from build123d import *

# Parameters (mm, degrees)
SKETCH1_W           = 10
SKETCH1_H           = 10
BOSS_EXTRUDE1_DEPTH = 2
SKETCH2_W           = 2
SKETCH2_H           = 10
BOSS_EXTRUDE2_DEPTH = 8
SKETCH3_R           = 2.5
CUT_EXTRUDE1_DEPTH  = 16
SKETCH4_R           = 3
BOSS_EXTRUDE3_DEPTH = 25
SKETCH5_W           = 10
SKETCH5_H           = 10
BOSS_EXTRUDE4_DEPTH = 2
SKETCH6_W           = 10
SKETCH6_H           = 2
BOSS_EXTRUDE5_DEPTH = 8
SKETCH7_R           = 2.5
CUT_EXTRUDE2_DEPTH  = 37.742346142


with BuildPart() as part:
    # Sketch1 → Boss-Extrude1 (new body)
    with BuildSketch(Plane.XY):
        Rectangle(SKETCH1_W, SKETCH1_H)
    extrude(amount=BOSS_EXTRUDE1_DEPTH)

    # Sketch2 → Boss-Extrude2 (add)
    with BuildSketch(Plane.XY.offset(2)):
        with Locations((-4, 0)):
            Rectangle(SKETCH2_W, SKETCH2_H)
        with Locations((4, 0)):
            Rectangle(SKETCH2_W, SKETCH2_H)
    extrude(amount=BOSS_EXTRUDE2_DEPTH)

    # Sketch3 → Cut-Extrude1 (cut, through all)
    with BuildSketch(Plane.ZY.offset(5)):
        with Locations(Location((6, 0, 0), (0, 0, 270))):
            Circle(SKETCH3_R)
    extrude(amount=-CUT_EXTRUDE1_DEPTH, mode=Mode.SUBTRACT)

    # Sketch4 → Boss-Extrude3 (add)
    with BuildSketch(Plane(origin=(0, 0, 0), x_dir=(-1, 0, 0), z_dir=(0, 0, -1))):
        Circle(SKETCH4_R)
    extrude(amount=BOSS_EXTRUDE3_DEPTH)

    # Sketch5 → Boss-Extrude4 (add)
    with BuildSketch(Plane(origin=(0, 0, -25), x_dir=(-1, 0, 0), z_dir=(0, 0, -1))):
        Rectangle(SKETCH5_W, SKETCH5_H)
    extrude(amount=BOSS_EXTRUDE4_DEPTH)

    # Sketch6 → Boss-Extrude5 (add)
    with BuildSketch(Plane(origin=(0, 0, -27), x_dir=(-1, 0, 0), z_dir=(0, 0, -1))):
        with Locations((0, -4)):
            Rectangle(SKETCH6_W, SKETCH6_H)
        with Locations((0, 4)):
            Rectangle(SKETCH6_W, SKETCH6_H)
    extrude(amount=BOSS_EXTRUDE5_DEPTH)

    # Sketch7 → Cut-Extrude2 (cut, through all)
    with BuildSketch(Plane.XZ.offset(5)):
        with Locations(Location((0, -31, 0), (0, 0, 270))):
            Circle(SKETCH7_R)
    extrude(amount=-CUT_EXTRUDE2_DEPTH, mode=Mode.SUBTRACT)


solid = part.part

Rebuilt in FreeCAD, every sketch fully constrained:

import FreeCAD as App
import Part
import Sketcher

doc = App.newDocument("Part")
body = doc.addObject("PartDesign::Body", "Body")

# Sketch on XY plane
sketch1 = doc.addObject("Sketcher::SketchObject", "Sketch")
body.addObject(sketch1)
sketch1.AttachmentSupport = (doc.XY_Plane, [""])
sketch1.MapMode = "FlatFace"
sketch1.addGeometry([
    Part.LineSegment(App.Vector(-5, 5, 0), App.Vector(-5, -5, 0)),
    Part.LineSegment(App.Vector(-5, -5, 0), App.Vector(5, -5, 0)),
    Part.LineSegment(App.Vector(5, -5, 0), App.Vector(5, 5, 0)),
    Part.LineSegment(App.Vector(5, 5, 0), App.Vector(-5, 5, 0)),
], False)
sketch1.addConstraint([
    Sketcher.Constraint("Coincident", 0, 2, 1, 1),
    Sketcher.Constraint("Coincident", 1, 2, 2, 1),
    Sketcher.Constraint("Coincident", 2, 2, 3, 1),
    Sketcher.Constraint("Coincident", 3, 2, 0, 1),
    Sketcher.Constraint("Vertical", 0),
    Sketcher.Constraint("Horizontal", 1),
    Sketcher.Constraint("Vertical", 2),
    Sketcher.Constraint("Horizontal", 3),
    Sketcher.Constraint("Symmetric", 0, 2, 2, 2, -1, 1),
    Sketcher.Constraint("Equal", 3, 0),
    Sketcher.Constraint("DistanceX", 1, 1, 1, 2, 10.0),
])
pad1 = doc.addObject("PartDesign::Pad", "Pad")
body.addObject(pad1)
pad1.Profile = sketch1
pad1.Length = 2

# Sketch on XY plane
sketch2 = doc.addObject("Sketcher::SketchObject", "Sketch001")
body.addObject(sketch2)
sketch2.AttachmentSupport = (doc.XY_Plane, [""])
sketch2.MapMode = "FlatFace"
sketch2.AttachmentOffset = App.Placement(App.Vector(0, 0, 2), App.Rotation())
sketch2.addGeometry([
    Part.LineSegment(App.Vector(-5, 5, 0), App.Vector(-5, -5, 0)),  # 0
    Part.LineSegment(App.Vector(-5, -5, 0), App.Vector(-3, -5, 0)),  # 1
    Part.LineSegment(App.Vector(-3, -5, 0), App.Vector(-3, 5, 0)),  # 2
    Part.LineSegment(App.Vector(-3, 5, 0), App.Vector(-5, 5, 0)),  # 3
    Part.LineSegment(App.Vector(3, 5, 0), App.Vector(3, -5, 0)),  # 4
    Part.LineSegment(App.Vector(3, -5, 0), App.Vector(5, -5, 0)),  # 5
    Part.LineSegment(App.Vector(5, -5, 0), App.Vector(5, 5, 0)),  # 6
    Part.LineSegment(App.Vector(5, 5, 0), App.Vector(3, 5, 0)),  # 7
], False)
sketch2.addConstraint([
    Sketcher.Constraint("Coincident", 0, 2, 1, 1),
    Sketcher.Constraint("Coincident", 1, 2, 2, 1),
    Sketcher.Constraint("Coincident", 2, 2, 3, 1),
    Sketcher.Constraint("Coincident", 3, 2, 0, 1),
    Sketcher.Constraint("Coincident", 4, 2, 5, 1),
    Sketcher.Constraint("Coincident", 5, 2, 6, 1),
    Sketcher.Constraint("Coincident", 6, 2, 7, 1),
    Sketcher.Constraint("Coincident", 7, 2, 4, 1),
    Sketcher.Constraint("Vertical", 0),
    Sketcher.Constraint("Horizontal", 1),
    Sketcher.Constraint("Vertical", 2),
    Sketcher.Constraint("Horizontal", 3),
    Sketcher.Constraint("Vertical", 4),
    Sketcher.Constraint("Horizontal", 5),
    Sketcher.Constraint("Vertical", 6),
    Sketcher.Constraint("Horizontal", 7),
    Sketcher.Constraint("Symmetric", 2, 2, 4, 2, -1, 1),
    Sketcher.Constraint("Symmetric", 0, 2, 6, 2, -1, 1),
    Sketcher.Constraint("Horizontal", 1, 2, 4, 2),
    Sketcher.Constraint("DistanceX", 1, 1, 1, 2, 2.0),
    Sketcher.Constraint("DistanceY", 0, 2, 0, 1, 10.0),
    Sketcher.Constraint("DistanceX", 0, 2, -1, 1, 5.0),
])
pad2 = doc.addObject("PartDesign::Pad", "Pad001")
body.addObject(pad2)
pad2.Profile = sketch2
pad2.Length = 8

# Sketch on YZ plane
sketch3 = doc.addObject("Sketcher::SketchObject", "Sketch002")
body.addObject(sketch3)
sketch3.AttachmentSupport = (doc.YZ_Plane, [""])
sketch3.MapMode = "FlatFace"
sketch3.AttachmentOffset = App.Placement(App.Vector(0, 0, -5), App.Rotation())
sketch3.addGeometry(Part.Circle(App.Vector(0, 6, 0), App.Vector(0, 0, 1), 2.5), False)
sketch3.addConstraint([
    Sketcher.Constraint("PointOnObject", 0, 3, -2),
    Sketcher.Constraint("Diameter", 0, 5.0),
    Sketcher.Constraint("DistanceY", -1, 1, 0, 3, 6.0),
])
pocket1 = doc.addObject("PartDesign::Pocket", "Pocket")
body.addObject(pocket1)
pocket1.Profile = sketch3
pocket1.Type = "ThroughAll"
pocket1.Reversed = True

# Sketch on XY plane
sketch4 = doc.addObject("Sketcher::SketchObject", "Sketch003")
body.addObject(sketch4)
sketch4.AttachmentSupport = (doc.XY_Plane, [""])
sketch4.MapMode = "FlatFace"
sketch4.addGeometry(Part.Circle(App.Vector(0, 0, 0), App.Vector(0, 0, 1), 3), False)
sketch4.addConstraint([
    Sketcher.Constraint("Coincident", 0, 3, -1, 1),
    Sketcher.Constraint("Diameter", 0, 6.0),
])
pad3 = doc.addObject("PartDesign::Pad", "Pad002")
body.addObject(pad3)
pad3.Profile = sketch4
pad3.Length = 25
pad3.Reversed = True

# Sketch on XY plane
sketch5 = doc.addObject("Sketcher::SketchObject", "Sketch004")
body.addObject(sketch5)
sketch5.AttachmentSupport = (doc.XY_Plane, [""])
sketch5.MapMode = "FlatFace"
sketch5.AttachmentOffset = App.Placement(App.Vector(0, 0, -25), App.Rotation())
sketch5.addGeometry([
    Part.LineSegment(App.Vector(5, 5, 0), App.Vector(5, -5, 0)),
    Part.LineSegment(App.Vector(5, -5, 0), App.Vector(-5, -5, 0)),
    Part.LineSegment(App.Vector(-5, -5, 0), App.Vector(-5, 5, 0)),
    Part.LineSegment(App.Vector(-5, 5, 0), App.Vector(5, 5, 0)),
], False)
sketch5.addConstraint([
    Sketcher.Constraint("Coincident", 0, 2, 1, 1),
    Sketcher.Constraint("Coincident", 1, 2, 2, 1),
    Sketcher.Constraint("Coincident", 2, 2, 3, 1),
    Sketcher.Constraint("Coincident", 3, 2, 0, 1),
    Sketcher.Constraint("Vertical", 0),
    Sketcher.Constraint("Horizontal", 1),
    Sketcher.Constraint("Vertical", 2),
    Sketcher.Constraint("Horizontal", 3),
    Sketcher.Constraint("Symmetric", 0, 2, 2, 2, -1, 1),
    Sketcher.Constraint("Equal", 3, 0),
    Sketcher.Constraint("DistanceX", 1, 2, 1, 1, 10.0),
])
pad4 = doc.addObject("PartDesign::Pad", "Pad003")
body.addObject(pad4)
pad4.Profile = sketch5
pad4.Length = 2
pad4.Reversed = True

# Sketch on XY plane
sketch6 = doc.addObject("Sketcher::SketchObject", "Sketch005")
body.addObject(sketch6)
sketch6.AttachmentSupport = (doc.XY_Plane, [""])
sketch6.MapMode = "FlatFace"
sketch6.AttachmentOffset = App.Placement(App.Vector(0, 0, -27), App.Rotation())
sketch6.addGeometry([
    Part.LineSegment(App.Vector(5, -3, 0), App.Vector(5, -5, 0)),  # 0
    Part.LineSegment(App.Vector(5, -5, 0), App.Vector(-5, -5, 0)),  # 1
    Part.LineSegment(App.Vector(-5, -5, 0), App.Vector(-5, -3, 0)),  # 2
    Part.LineSegment(App.Vector(-5, -3, 0), App.Vector(5, -3, 0)),  # 3
    Part.LineSegment(App.Vector(5, 5, 0), App.Vector(5, 3, 0)),  # 4
    Part.LineSegment(App.Vector(5, 3, 0), App.Vector(-5, 3, 0)),  # 5
    Part.LineSegment(App.Vector(-5, 3, 0), App.Vector(-5, 5, 0)),  # 6
    Part.LineSegment(App.Vector(-5, 5, 0), App.Vector(5, 5, 0)),  # 7
], False)
sketch6.addConstraint([
    Sketcher.Constraint("Coincident", 0, 2, 1, 1),
    Sketcher.Constraint("Coincident", 1, 2, 2, 1),
    Sketcher.Constraint("Coincident", 2, 2, 3, 1),
    Sketcher.Constraint("Coincident", 3, 2, 0, 1),
    Sketcher.Constraint("Coincident", 4, 2, 5, 1),
    Sketcher.Constraint("Coincident", 5, 2, 6, 1),
    Sketcher.Constraint("Coincident", 6, 2, 7, 1),
    Sketcher.Constraint("Coincident", 7, 2, 4, 1),
    Sketcher.Constraint("Vertical", 0),
    Sketcher.Constraint("Horizontal", 1),
    Sketcher.Constraint("Vertical", 2),
    Sketcher.Constraint("Horizontal", 3),
    Sketcher.Constraint("Vertical", 4),
    Sketcher.Constraint("Horizontal", 5),
    Sketcher.Constraint("Vertical", 6),
    Sketcher.Constraint("Horizontal", 7),
    Sketcher.Constraint("Symmetric", 2, 2, 4, 2, -1, 1),
    Sketcher.Constraint("Symmetric", 0, 2, 6, 2, -1, 1),
    Sketcher.Constraint("Vertical", 3, 2, 4, 2),
    Sketcher.Constraint("DistanceX", 1, 2, 1, 1, 10.0),
    Sketcher.Constraint("DistanceY", 0, 2, 0, 1, 2.0),
    Sketcher.Constraint("DistanceY", 0, 2, -1, 1, 5.0),
])
pad5 = doc.addObject("PartDesign::Pad", "Pad004")
body.addObject(pad5)
pad5.Profile = sketch6
pad5.Length = 8
pad5.Reversed = True

# Sketch on XZ plane
sketch7 = doc.addObject("Sketcher::SketchObject", "Sketch006")
body.addObject(sketch7)
sketch7.AttachmentSupport = (doc.XZ_Plane, [""])
sketch7.MapMode = "FlatFace"
sketch7.AttachmentOffset = App.Placement(App.Vector(0, 0, 5), App.Rotation())
sketch7.addGeometry(Part.Circle(App.Vector(0, -31, 0), App.Vector(0, 0, 1), 2.5), False)
sketch7.addConstraint([
    Sketcher.Constraint("PointOnObject", 0, 3, -2),
    Sketcher.Constraint("Diameter", 0, 5.0),
    Sketcher.Constraint("DistanceY", 0, 3, -1, 1, 31.0),
])
pocket2 = doc.addObject("PartDesign::Pocket", "Pocket001")
body.addObject(pocket2)
pocket2.Profile = sketch7
pocket2.Type = "ThroughAll"

doc.recompute()
